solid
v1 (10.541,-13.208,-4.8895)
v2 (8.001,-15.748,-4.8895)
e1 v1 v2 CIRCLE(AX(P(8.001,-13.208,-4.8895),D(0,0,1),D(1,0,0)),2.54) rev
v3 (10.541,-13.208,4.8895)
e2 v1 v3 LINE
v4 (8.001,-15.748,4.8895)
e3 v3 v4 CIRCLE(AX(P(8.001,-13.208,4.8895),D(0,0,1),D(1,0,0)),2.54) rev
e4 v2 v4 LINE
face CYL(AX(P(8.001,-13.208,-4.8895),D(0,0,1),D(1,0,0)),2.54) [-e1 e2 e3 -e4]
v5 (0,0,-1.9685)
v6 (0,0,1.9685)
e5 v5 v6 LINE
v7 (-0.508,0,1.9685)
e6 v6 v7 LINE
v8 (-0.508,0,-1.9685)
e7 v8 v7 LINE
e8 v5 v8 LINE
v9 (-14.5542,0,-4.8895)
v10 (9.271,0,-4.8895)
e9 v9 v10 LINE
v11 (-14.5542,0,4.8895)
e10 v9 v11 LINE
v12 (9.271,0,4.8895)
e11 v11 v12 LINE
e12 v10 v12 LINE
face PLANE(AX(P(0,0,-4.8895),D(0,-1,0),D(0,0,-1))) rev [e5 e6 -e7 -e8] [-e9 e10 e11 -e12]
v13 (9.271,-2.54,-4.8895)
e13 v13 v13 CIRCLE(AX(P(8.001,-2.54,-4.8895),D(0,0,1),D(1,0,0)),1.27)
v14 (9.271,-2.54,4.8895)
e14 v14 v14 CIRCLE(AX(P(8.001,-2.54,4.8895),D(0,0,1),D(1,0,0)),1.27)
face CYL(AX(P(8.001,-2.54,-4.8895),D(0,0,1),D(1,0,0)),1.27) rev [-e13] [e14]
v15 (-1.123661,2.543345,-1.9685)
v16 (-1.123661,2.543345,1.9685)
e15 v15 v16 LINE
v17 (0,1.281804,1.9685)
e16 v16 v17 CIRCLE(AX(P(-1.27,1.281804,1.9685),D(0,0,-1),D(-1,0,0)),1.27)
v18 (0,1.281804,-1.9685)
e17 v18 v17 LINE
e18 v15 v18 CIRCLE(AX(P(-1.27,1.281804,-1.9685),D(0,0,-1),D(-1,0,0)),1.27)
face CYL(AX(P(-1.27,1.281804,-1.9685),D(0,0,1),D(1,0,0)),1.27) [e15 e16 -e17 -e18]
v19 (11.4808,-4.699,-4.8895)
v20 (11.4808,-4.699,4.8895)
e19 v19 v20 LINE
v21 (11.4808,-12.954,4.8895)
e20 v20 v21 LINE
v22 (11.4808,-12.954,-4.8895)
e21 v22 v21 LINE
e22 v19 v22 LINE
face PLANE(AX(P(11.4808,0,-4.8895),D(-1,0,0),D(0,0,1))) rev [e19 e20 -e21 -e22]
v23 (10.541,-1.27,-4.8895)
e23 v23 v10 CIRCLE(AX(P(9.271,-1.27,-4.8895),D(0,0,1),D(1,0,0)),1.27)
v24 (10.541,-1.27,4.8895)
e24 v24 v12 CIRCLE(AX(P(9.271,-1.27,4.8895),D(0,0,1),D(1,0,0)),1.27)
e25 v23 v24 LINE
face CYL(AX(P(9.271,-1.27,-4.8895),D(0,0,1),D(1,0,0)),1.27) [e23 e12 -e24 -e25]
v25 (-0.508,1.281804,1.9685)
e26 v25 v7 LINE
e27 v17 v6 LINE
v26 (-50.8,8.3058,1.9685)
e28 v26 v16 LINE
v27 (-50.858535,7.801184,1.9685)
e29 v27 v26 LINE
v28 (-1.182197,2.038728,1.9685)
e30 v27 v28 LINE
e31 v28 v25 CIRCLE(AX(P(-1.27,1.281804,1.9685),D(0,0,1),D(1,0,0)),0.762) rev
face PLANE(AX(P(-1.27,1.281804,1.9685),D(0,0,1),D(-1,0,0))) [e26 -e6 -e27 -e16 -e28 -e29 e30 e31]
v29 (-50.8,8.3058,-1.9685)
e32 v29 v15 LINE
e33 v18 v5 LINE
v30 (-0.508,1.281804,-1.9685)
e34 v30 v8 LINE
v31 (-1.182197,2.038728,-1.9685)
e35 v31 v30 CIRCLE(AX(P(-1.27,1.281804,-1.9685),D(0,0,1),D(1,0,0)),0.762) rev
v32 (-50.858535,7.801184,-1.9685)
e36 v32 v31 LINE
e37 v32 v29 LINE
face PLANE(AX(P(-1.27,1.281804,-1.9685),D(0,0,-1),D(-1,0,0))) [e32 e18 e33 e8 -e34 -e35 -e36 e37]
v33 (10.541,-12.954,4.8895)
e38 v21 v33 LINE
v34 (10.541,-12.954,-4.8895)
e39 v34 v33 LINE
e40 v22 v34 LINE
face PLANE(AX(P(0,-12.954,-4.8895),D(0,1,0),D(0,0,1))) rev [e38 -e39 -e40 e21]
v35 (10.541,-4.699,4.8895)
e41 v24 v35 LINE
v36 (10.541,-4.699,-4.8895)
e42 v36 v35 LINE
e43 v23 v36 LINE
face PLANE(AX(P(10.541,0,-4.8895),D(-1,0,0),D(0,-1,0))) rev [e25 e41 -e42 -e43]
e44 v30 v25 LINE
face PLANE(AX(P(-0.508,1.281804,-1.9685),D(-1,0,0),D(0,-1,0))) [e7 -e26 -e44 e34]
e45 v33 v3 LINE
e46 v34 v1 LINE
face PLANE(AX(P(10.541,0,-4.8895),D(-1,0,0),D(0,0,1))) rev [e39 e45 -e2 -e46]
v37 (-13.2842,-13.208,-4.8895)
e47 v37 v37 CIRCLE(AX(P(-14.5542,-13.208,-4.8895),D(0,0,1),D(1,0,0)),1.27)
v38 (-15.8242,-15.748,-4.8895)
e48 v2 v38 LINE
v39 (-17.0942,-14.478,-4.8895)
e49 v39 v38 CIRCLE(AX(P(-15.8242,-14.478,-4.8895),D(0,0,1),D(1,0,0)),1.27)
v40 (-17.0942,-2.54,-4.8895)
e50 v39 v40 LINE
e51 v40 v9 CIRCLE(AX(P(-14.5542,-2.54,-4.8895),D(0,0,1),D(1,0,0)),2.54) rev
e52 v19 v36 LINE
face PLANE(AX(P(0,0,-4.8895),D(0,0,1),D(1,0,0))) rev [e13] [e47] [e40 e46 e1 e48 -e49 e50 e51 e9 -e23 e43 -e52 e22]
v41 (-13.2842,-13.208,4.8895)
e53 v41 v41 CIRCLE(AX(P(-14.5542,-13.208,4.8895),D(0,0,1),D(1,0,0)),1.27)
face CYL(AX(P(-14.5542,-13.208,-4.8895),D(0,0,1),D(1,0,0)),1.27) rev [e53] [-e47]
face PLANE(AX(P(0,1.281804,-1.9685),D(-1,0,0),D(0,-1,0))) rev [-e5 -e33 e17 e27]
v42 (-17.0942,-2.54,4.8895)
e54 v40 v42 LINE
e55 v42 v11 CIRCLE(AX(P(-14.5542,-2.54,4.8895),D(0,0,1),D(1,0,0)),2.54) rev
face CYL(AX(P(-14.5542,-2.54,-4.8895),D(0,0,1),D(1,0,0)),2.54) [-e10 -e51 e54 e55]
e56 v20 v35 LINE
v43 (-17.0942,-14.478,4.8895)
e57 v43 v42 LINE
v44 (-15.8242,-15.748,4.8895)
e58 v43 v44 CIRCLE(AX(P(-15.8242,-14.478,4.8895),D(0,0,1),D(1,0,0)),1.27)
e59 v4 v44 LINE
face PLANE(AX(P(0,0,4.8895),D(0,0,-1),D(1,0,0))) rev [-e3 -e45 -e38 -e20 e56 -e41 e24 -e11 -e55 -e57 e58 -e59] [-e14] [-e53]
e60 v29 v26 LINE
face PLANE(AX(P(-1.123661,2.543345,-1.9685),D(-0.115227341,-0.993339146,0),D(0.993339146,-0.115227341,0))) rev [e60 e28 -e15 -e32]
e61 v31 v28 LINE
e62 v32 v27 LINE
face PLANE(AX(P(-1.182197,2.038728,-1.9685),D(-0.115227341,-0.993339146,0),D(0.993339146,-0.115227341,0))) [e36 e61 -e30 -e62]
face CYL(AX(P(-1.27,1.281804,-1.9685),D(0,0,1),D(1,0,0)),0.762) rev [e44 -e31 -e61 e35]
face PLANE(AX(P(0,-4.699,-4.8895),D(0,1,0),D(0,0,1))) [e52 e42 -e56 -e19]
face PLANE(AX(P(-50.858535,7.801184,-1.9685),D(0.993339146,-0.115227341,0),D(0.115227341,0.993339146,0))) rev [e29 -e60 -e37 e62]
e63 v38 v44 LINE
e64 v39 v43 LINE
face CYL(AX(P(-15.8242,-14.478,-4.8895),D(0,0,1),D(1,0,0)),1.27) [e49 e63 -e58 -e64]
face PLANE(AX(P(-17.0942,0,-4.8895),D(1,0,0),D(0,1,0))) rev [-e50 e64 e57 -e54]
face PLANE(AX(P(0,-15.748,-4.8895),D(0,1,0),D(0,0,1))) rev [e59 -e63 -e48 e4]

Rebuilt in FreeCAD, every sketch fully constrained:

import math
import FreeCAD as App
import Part
import Sketcher
Q = App.Units.Quantity

doc = App.newDocument("Part")
body = doc.addObject("PartDesign::Body", "Body")

sketch1 = doc.addObject("Sketcher::SketchObject", "Sketch")
body.addObject(sketch1)
sketch1.AttachmentSupport = (doc.XY_Plane, [""])
sketch1.MapMode = "FlatFace"
sketch1.addGeometry([
    Part.LineSegment(App.Vector(-1.123661, 2.543345, 0), App.Vector(-50.8, 8.3058, 0)),
    Part.LineSegment(App.Vector(-50.8, 8.3058, 0), App.Vector(-50.858535, 7.801184, 0)),
    Part.LineSegment(App.Vector(-50.858535, 7.801184, 0), App.Vector(-1.182197, 2.038728, 0)),
    Part.ArcOfCircle(Part.Circle(App.Vector(-1.27, 1.281804, 0), App.Vector(0, 0, 1), 0.762), math.radians(0), math.radians(83.383262)),
    Part.LineSegment(App.Vector(-0.508, 1.281804, 0), App.Vector(-0.508, 0, 0)),
    Part.LineSegment(App.Vector(-0.508, 0, 0), App.Vector(0, 0, 0)),
    Part.LineSegment(App.Vector(0, 0, 0), App.Vector(0, 1.281804, 0)),
    Part.ArcOfCircle(Part.Circle(App.Vector(-1.27, 1.281804, 0), App.Vector(0, 0, 1), 1.27), math.radians(0), math.radians(83.383262)),
], False)
sketch1.addConstraint([
    Sketcher.Constraint("Coincident", 0, 2, 1, 1),
    Sketcher.Constraint("Coincident", 1, 2, 2, 1),
    Sketcher.Constraint("Tangent", 2, 2, 3, 2),
    Sketcher.Constraint("Tangent", 3, 1, 4, 1),
    Sketcher.Constraint("Coincident", 4, 2, 5, 1),
    Sketcher.Constraint("Coincident", 5, 2, 6, 1),
    Sketcher.Constraint("Tangent", 6, 2, 7, 1),
    Sketcher.Constraint("Tangent", 7, 2, 0, 1),
    Sketcher.Constraint("Vertical", 4),
    Sketcher.Constraint("Horizontal", 5),
    Sketcher.Constraint("Vertical", 6),
    Sketcher.Constraint("Coincident", 5, 2, -1, 1),
    Sketcher.Constraint("Coincident", 7, 3, 3, 3),
    Sketcher.Constraint("Perpendicular", 0, 1),
    Sketcher.Constraint("Perpendicular", 1, 2),
    Sketcher.Constraint("Radius", 3, Q("0.03 in")),
    Sketcher.Constraint("Radius", 7, Q("0.05 in")),
    Sketcher.Constraint("DistanceX", 0, 2, -1, 1, Q("2 in")),
    Sketcher.Constraint("DistanceY", -1, 1, 0, 2, Q("0.327 in")),
    Sketcher.Constraint("DistanceY", 4, 2, 4, 1, Q("1.281804 mm")),
])
pad1 = doc.addObject("PartDesign::Pad", "Pad")
body.addObject(pad1)
pad1.Profile = sketch1
pad1.Length = Q("0.0775 in")
pad1.Reversed = True

sketch2 = doc.addObject("Sketcher::SketchObject", "Sketch001")
body.addObject(sketch2)
sketch2.AttachmentSupport = (doc.XY_Plane, [""])
sketch2.MapMode = "FlatFace"
sketch2.addGeometry([
    Part.LineSegment(App.Vector(9.271, 0, 0), App.Vector(-14.5542, 0, 0)),
    Part.ArcOfCircle(Part.Circle(App.Vector(-14.5542, -2.54, 0), App.Vector(0, 0, 1), 2.54), math.radians(90), math.radians(180)),
    Part.LineSegment(App.Vector(-17.0942, -2.54, 0), App.Vector(-17.0942, -14.478, 0)),
    Part.ArcOfCircle(Part.Circle(App.Vector(-15.8242, -14.478, 0), App.Vector(0, 0, 1), 1.27), math.radians(180), math.radians(270)),
    Part.LineSegment(App.Vector(-15.8242, -15.748, 0), App.Vector(8.001, -15.748, 0)),
    Part.ArcOfCircle(Part.Circle(App.Vector(8.001, -13.208, 0), App.Vector(0, 0, 1), 2.54), math.radians(-90), math.radians(0)),
    Part.LineSegment(App.Vector(10.541, -13.208, 0), App.Vector(10.541, -12.954, 0)),
    Part.LineSegment(App.Vector(10.541, -12.954, 0), App.Vector(11.4808, -12.954, 0)),
    Part.LineSegment(App.Vector(11.4808, -12.954, 0), App.Vector(11.4808, -4.699, 0)),
    Part.LineSegment(App.Vector(11.4808, -4.699, 0), App.Vector(10.541, -4.699, 0)),
    Part.LineSegment(App.Vector(10.541, -4.699, 0), App.Vector(10.541, -1.27, 0)),
    Part.ArcOfCircle(Part.Circle(App.Vector(9.271, -1.27, 0), App.Vector(0, 0, 1), 1.27), math.radians(0), math.radians(90)),
    Part.Circle(App.Vector(-14.5542, -13.208, 0), App.Vector(0, 0, 1), 1.27),
    Part.Circle(App.Vector(8.001, -2.54, 0), App.Vector(0, 0, 1), 1.27),
], False)
sketch2.addConstraint([
    Sketcher.Constraint("Tangent", 0, 2, 1, 1),
    Sketcher.Constraint("Tangent", 1, 2, 2, 1),
    Sketcher.Constraint("Tangent", 2, 2, 3, 1),
    Sketcher.Constraint("Tangent", 3, 2, 4, 1),
    Sketcher.Constraint("Tangent", 4, 2, 5, 1),
    Sketcher.Constraint("Tangent", 5, 2, 6, 1),
    Sketcher.Constraint("Coincident", 6, 2, 7, 1),
    Sketcher.Constraint("Coincident", 7, 2, 8, 1),
    Sketcher.Constraint("Coincident", 8, 2, 9, 1),
    Sketcher.Constraint("Coincident", 9, 2, 10, 1),
    Sketcher.Constraint("Tangent", 10, 2, 11, 1),
    Sketcher.Constraint("Tangent", 11, 2, 0, 1),
    Sketcher.Constraint("Horizontal", 0),
    Sketcher.Constraint("Vertical", 2),
    Sketcher.Constraint("Horizontal", 4),
    Sketcher.Constraint("Vertical", 6),
    Sketcher.Constraint("Horizontal", 7),
    Sketcher.Constraint("Vertical", 8),
    Sketcher.Constraint("Horizontal", 9),
    Sketcher.Constraint("Vertical", 10),
    Sketcher.Constraint("Equal", 1, 5),
    Sketcher.Constraint("Equal", 3, 11),
    Sketcher.Constraint("Equal", 11, 12),
    Sketcher.Constraint("Equal", 12, 13),
    Sketcher.Constraint("PointOnObject", 0, 2, -1),
    Sketcher.Constraint("Horizontal", 5, 3, 12, 3),
    Sketcher.Constraint("Horizontal", 1, 3, 13, 3),
    Sketcher.Constraint("Vertical", 1, 3, 12, 3),
    Sketcher.Constraint("Vertical", 5, 3, 13, 3),
    Sketcher.Constraint("Vertical", 6, 2, 9, 2),
    Sketcher.Constraint("Diameter", 12, Q("0.1 in")),
    Sketcher.Constraint("Radius", 1, Q("0.1 in")),
    Sketcher.Constraint("DistanceY", 2, 2, 2, 1, Q("0.47 in")),
    Sketcher.Constraint("DistanceY", 6, 1, 6, 2, Q("0.01 in")),
    Sketcher.Constraint("DistanceX", 0, 2, 0, 1, Q("0.938 in")),
    Sketcher.Constraint("DistanceX", 7, 1, 7, 2, Q("0.037 in")),
    Sketcher.Constraint("DistanceY", 8, 1, 8, 2, Q("0.325 in")),
    Sketcher.Constraint("DistanceX", 1, 3, -1, 1, Q("0.573 in")),
])
pad2 = doc.addObject("PartDesign::Pad", "Pad001")
body.addObject(pad2)
pad2.Profile = sketch2
pad2.Length = Q("0.1925 in")
pad2.Reversed = True
doc.recompute()

mirrored = doc.addObject("PartDesign::Mirrored", "Mirrored")
body.addObject(mirrored)
mirrored.Originals = [pad1, pad2]
mirrored.MirrorPlane = (doc.XY_Plane, [""])
body.Tip = mirrored

doc.recompute()
